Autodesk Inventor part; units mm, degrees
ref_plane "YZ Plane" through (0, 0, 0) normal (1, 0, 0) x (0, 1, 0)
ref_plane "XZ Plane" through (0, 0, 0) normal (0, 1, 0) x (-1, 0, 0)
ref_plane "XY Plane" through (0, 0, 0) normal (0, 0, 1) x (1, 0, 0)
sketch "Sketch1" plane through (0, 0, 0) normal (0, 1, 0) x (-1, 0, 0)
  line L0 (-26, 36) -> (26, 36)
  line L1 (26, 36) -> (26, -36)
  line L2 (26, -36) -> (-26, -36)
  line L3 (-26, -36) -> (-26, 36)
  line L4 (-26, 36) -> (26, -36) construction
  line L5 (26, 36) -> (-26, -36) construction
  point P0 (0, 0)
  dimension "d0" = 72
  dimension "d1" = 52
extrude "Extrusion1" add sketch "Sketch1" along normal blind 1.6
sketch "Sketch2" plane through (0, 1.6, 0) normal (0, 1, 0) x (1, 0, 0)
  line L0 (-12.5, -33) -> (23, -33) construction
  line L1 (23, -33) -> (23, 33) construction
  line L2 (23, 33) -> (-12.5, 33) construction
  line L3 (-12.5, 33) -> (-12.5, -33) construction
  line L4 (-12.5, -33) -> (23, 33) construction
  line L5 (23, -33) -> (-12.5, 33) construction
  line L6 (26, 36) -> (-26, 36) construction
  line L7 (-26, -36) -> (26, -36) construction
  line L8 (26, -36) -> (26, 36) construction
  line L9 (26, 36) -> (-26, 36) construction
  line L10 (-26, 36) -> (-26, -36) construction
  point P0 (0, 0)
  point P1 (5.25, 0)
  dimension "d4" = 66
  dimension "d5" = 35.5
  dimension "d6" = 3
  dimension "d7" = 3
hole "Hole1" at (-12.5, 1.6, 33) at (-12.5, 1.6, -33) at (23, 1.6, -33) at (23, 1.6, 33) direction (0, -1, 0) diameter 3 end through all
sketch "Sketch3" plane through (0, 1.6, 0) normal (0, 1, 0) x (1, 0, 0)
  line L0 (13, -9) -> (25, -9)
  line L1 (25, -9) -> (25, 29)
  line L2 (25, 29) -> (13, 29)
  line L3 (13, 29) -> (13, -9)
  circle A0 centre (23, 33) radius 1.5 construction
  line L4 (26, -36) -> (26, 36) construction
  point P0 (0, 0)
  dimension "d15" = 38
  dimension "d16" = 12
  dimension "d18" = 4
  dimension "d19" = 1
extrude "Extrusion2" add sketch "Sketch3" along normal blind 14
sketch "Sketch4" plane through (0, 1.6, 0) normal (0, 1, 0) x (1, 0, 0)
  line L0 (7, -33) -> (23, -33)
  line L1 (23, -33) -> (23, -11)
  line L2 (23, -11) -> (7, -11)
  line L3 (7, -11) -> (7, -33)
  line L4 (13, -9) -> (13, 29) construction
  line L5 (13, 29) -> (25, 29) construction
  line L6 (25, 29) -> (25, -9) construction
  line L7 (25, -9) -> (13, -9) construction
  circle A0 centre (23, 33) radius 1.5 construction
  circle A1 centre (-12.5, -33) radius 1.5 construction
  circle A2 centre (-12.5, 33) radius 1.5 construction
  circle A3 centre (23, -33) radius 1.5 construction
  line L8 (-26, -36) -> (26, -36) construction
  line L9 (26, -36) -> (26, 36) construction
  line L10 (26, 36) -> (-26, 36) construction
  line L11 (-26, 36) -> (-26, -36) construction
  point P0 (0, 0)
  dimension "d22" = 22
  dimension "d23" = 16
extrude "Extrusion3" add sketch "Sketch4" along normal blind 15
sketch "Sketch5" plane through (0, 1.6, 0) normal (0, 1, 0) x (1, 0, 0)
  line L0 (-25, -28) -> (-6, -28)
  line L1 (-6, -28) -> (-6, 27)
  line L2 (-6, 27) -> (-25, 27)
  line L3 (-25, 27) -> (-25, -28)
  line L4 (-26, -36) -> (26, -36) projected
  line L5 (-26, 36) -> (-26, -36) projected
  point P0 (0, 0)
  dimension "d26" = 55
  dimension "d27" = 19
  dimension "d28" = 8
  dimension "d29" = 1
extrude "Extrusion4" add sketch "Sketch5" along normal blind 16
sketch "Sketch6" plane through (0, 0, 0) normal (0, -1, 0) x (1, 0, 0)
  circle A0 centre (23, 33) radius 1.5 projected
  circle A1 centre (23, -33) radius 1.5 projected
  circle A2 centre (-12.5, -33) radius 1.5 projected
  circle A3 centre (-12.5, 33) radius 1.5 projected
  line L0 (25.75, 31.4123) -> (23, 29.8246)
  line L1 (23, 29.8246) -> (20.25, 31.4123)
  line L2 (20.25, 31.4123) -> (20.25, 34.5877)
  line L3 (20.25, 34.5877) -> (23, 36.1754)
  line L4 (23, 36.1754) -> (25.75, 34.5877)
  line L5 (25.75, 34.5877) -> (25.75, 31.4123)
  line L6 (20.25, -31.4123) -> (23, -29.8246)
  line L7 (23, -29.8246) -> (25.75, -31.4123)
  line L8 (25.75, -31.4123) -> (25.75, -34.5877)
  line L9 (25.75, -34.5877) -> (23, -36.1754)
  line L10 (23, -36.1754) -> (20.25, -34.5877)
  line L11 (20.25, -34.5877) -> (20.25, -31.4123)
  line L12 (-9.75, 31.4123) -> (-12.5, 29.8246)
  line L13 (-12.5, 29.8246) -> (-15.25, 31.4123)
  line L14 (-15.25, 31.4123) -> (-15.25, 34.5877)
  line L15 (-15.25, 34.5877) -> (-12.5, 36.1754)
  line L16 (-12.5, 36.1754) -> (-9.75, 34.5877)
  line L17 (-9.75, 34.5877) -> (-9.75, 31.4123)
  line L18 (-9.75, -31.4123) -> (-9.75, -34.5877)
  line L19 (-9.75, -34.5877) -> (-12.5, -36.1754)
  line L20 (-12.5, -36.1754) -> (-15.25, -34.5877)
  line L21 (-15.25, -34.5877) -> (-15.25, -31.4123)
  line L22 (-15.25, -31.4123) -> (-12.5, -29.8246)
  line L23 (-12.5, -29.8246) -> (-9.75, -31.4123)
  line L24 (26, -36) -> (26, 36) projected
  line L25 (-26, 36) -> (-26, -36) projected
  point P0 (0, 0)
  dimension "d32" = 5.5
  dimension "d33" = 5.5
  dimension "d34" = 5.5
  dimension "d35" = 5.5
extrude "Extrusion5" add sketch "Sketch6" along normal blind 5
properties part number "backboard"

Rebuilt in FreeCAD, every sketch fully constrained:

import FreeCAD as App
import Part
import Sketcher

V = App.Vector
Q = App.Units.Quantity

doc = App.newDocument("Part")
params = doc.addObject("Spreadsheet::Sheet", "Params")
for row, (alias, value) in enumerate([
    ("sketch1_width", "52 mm"),
    ("sketch1_height", "72 mm"),
    ("pad1_length", "1.6 mm"),
    ("sketch2_diameter", "3 mm"),
    ("hole_diameter", "3 mm"),
    ("sketch3_width", "12 mm"),
    ("sketch3_height", "38 mm"),
    ("pad2_length", "14 mm"),
    ("sketch4_width", "16 mm"),
    ("sketch4_height", "22 mm"),
    ("pad3_length", "15 mm"),
    ("sketch5_width", "19 mm"),
    ("sketch5_height", "55 mm"),
    ("pad4_length", "16 mm"),
    ("sketch6_diameter", "3 mm"),
    ("pad5_length", "5 mm"),
], start=1):
    params.set(f"A{row}", alias)
    params.set(f"B{row}", "=" + value)
    params.setAlias(f"B{row}", alias)

body = doc.addObject("PartDesign::Body", "Body")

sketch1 = doc.addObject("Sketcher::SketchObject", "Sketch")
body.addObject(sketch1)
sketch1.AttachmentSupport = (doc.XZ_Plane, [""])
sketch1.MapMode = "FlatFace"
sketch1.addGeometry(Part.LineSegment(V(-26, 36, 0), V(26, 36, 0)), False)
sketch1.addGeometry(Part.LineSegment(V(26, 36, 0), V(26, -36, 0)), False)
sketch1.addGeometry(Part.LineSegment(V(26, -36, 0), V(-26, -36, 0)), False)
sketch1.addGeometry(Part.LineSegment(V(-26, -36, 0), V(-26, 36, 0)), False)
sketch1.addConstraint(Sketcher.Constraint("Coincident", 0, 2, 1, 1))
sketch1.addConstraint(Sketcher.Constraint("Coincident", 1, 2, 2, 1))
sketch1.addConstraint(Sketcher.Constraint("Coincident", 2, 2, 3, 1))
sketch1.addConstraint(Sketcher.Constraint("Coincident", 3, 2, 0, 1))
sketch1.addConstraint(Sketcher.Constraint("Horizontal", 0))
sketch1.addConstraint(Sketcher.Constraint("Vertical", 1))
sketch1.addConstraint(Sketcher.Constraint("Horizontal", 2))
sketch1.addConstraint(Sketcher.Constraint("Vertical", 3))
sketch1.addConstraint(Sketcher.Constraint("Symmetric", 0, 2, 2, 2, -1, 1))
sketch1.addConstraint(Sketcher.Constraint("DistanceX", 0, 1, 0, 2, Q("52 mm")))
sketch1.addConstraint(Sketcher.Constraint("DistanceY", 1, 2, 1, 1, Q("72 mm")))
sketch1.setExpression("Constraints[9]", "Params.sketch1_width")
sketch1.setExpression("Constraints[10]", "Params.sketch1_height")
pad1 = doc.addObject("PartDesign::Pad", "Pad")
body.addObject(pad1)
pad1.Profile = sketch1
pad1.setExpression("Length", "Params.pad1_length")
pad1.Reversed = True

sketch2 = doc.addObject("Sketcher::SketchObject", "Sketch001")
body.addObject(sketch2)
sketch2.AttachmentSupport = (doc.XZ_Plane, [""])
sketch2.MapMode = "FlatFace"
sketch2.AttachmentOffset = App.Placement(V(0, 0, -1.6), App.Rotation())
sketch2.addGeometry(Part.Circle(V(-12.5, 33, 0), V(0, 0, 1), 1.5), False)
sketch2.addGeometry(Part.Circle(V(-12.5, -33, 0), V(0, 0, 1), 1.5), False)
sketch2.addGeometry(Part.Circle(V(23, -33, 0), V(0, 0, 1), 1.5), False)
sketch2.addGeometry(Part.Circle(V(23, 33, 0), V(0, 0, 1), 1.5), False)
sketch2.addConstraint(Sketcher.Constraint("Equal", 0, 1))
sketch2.addConstraint(Sketcher.Constraint("Equal", 1, 2))
sketch2.addConstraint(Sketcher.Constraint("Equal", 2, 3))
sketch2.addConstraint(Sketcher.Constraint("Symmetric", 0, 3, 1, 3, -1))
sketch2.addConstraint(Sketcher.Constraint("Symmetric", 2, 3, 3, 3, -1))
sketch2.addConstraint(Sketcher.Constraint("Horizontal", 1, 3, 2, 3))
sketch2.addConstraint(Sketcher.Constraint("Diameter", 0, Q("3 mm")))
sketch2.addConstraint(Sketcher.Constraint("DistanceY", -1, 1, 0, 3, Q("33 mm")))
sketch2.addConstraint(Sketcher.Constraint("DistanceX", -1, 1, 2, 3, Q("23 mm")))
sketch2.addConstraint(Sketcher.Constraint("DistanceX", 0, 3, -1, 1, Q("12.5 mm")))
sketch2.setExpression("Constraints[6]", "Params.sketch2_diameter")
doc.recompute()
hole = doc.addObject("PartDesign::Hole", "Hole")
body.addObject(hole)
hole.Profile = sketch2
hole.ThreadType = "None"
hole.setExpression("Diameter", "Params.hole_diameter")
hole.DepthType = "ThroughAll"
hole.Reversed = True

sketch3 = doc.addObject("Sketcher::SketchObject", "Sketch002")
body.addObject(sketch3)
sketch3.AttachmentSupport = (doc.XZ_Plane, [""])
sketch3.MapMode = "FlatFace"
sketch3.AttachmentOffset = App.Placement(V(0, 0, -1.6), App.Rotation())
sketch3.addGeometry(Part.LineSegment(V(13, -29, 0), V(13, 9, 0)), False)
sketch3.addGeometry(Part.LineSegment(V(13, 9, 0), V(25, 9, 0)), False)
sketch3.addGeometry(Part.LineSegment(V(25, 9, 0), V(25, -29, 0)), False)
sketch3.addGeometry(Part.LineSegment(V(25, -29, 0), V(13, -29, 0)), False)
sketch3.addConstraint(Sketcher.Constraint("Coincident", 0, 2, 1, 1))
sketch3.addConstraint(Sketcher.Constraint("Coincident", 1, 2, 2, 1))
sketch3.addConstraint(Sketcher.Constraint("Coincident", 2, 2, 3, 1))
sketch3.addConstraint(Sketcher.Constraint("Coincident", 3, 2, 0, 1))
sketch3.addConstraint(Sketcher.Constraint("Vertical", 0))
sketch3.addConstraint(Sketcher.Constraint("Horizontal", 1))
sketch3.addConstraint(Sketcher.Constraint("Vertical", 2))
sketch3.addConstraint(Sketcher.Constraint("Horizontal", 3))
sketch3.addConstraint(Sketcher.Constraint("DistanceX", 1, 1, 1, 2, Q("12 mm")))
sketch3.addConstraint(Sketcher.Constraint("DistanceY", 0, 1, 0, 2, Q("38 mm")))
sketch3.addConstraint(Sketcher.Constraint("DistanceX", -1, 1, 0, 2, Q("13 mm")))
sketch3.addConstraint(Sketcher.Constraint("DistanceY", -1, 1, 0, 2, Q("9 mm")))
sketch3.setExpression("Constraints[8]", "Params.sketch3_width")
sketch3.setExpression("Constraints[9]", "Params.sketch3_height")
pad2 = doc.addObject("PartDesign::Pad", "Pad001")
body.addObject(pad2)
pad2.Profile = sketch3
pad2.setExpression("Length", "Params.pad2_length")
pad2.Reversed = True

sketch4 = doc.addObject("Sketcher::SketchObject", "Sketch003")
body.addObject(sketch4)
sketch4.AttachmentSupport = (doc.XZ_Plane, [""])
sketch4.MapMode = "FlatFace"
sketch4.AttachmentOffset = App.Placement(V(0, 0, -1.6), App.Rotation())
sketch4.addGeometry(Part.LineSegment(V(7, 11, 0), V(7, 33, 0)), False)
sketch4.addGeometry(Part.LineSegment(V(7, 33, 0), V(23, 33, 0)), False)
sketch4.addGeometry(Part.LineSegment(V(23, 33, 0), V(23, 11, 0)), False)
sketch4.addGeometry(Part.LineSegment(V(23, 11, 0), V(7, 11, 0)), False)
sketch4.addConstraint(Sketcher.Constraint("Coincident", 0, 2, 1, 1))
sketch4.addConstraint(Sketcher.Constraint("Coincident", 1, 2, 2, 1))
sketch4.addConstraint(Sketcher.Constraint("Coincident", 2, 2, 3, 1))
sketch4.addConstraint(Sketcher.Constraint("Coincident", 3, 2, 0, 1))
sketch4.addConstraint(Sketcher.Constraint("Vertical", 0))
sketch4.addConstraint(Sketcher.Constraint("Horizontal", 1))
sketch4.addConstraint(Sketcher.Constraint("Vertical", 2))
sketch4.addConstraint(Sketcher.Constraint("Horizontal", 3))
sketch4.addConstraint(Sketcher.Constraint("DistanceX", 1, 1, 1, 2, Q("16 mm")))
sketch4.addConstraint(Sketcher.Constraint("DistanceY", 0, 1, 0, 2, Q("22 mm")))
sketch4.addConstraint(Sketcher.Constraint("DistanceX", -1, 1, 0, 2, Q("7 mm")))
sketch4.addConstraint(Sketcher.Constraint("DistanceY", -1, 1, 0, 2, Q("33 mm")))
sketch4.setExpression("Constraints[8]", "Params.sketch4_width")
sketch4.setExpression("Constraints[9]", "Params.sketch4_height")
pad3 = doc.addObject("PartDesign::Pad", "Pad002")
body.addObject(pad3)
pad3.Profile = sketch4
pad3.setExpression("Length", "Params.pad3_length")
pad3.Reversed = True

sketch5 = doc.addObject("Sketcher::SketchObject", "Sketch004")
body.addObject(sketch5)
sketch5.AttachmentSupport = (doc.XZ_Plane, [""])
sketch5.MapMode = "FlatFace"
sketch5.AttachmentOffset = App.Placement(V(0, 0, -1.6), App.Rotation())
sketch5.addGeometry(Part.LineSegment(V(-25, -27, 0), V(-25, 28, 0)), False)
sketch5.addGeometry(Part.LineSegment(V(-25, 28, 0), V(-6, 28, 0)), False)
sketch5.addGeometry(Part.LineSegment(V(-6, 28, 0), V(-6, -27, 0)), False)
sketch5.addGeometry(Part.LineSegment(V(-6, -27, 0), V(-25, -27, 0)), False)
sketch5.addConstraint(Sketcher.Constraint("Coincident", 0, 2, 1, 1))
sketch5.addConstraint(Sketcher.Constraint("Coincident", 1, 2, 2, 1))
sketch5.addConstraint(Sketcher.Constraint("Coincident", 2, 2, 3, 1))
sketch5.addConstraint(Sketcher.Constraint("Coincident", 3, 2, 0, 1))
sketch5.addConstraint(Sketcher.Constraint("Vertical", 0))
sketch5.addConstraint(Sketcher.Constraint("Horizontal", 1))
sketch5.addConstraint(Sketcher.Constraint("Vertical", 2))
sketch5.addConstraint(Sketcher.Constraint("Horizontal", 3))
sketch5.addConstraint(Sketcher.Constraint("DistanceX", 1, 1, 1, 2, Q("19 mm")))
sketch5.addConstraint(Sketcher.Constraint("DistanceY", 0, 1, 0, 2, Q("55 mm")))
sketch5.addConstraint(Sketcher.Constraint("DistanceX", 0, 2, -1, 1, Q("25 mm")))
sketch5.addConstraint(Sketcher.Constraint("DistanceY", -1, 1, 0, 2, Q("28 mm")))
sketch5.setExpression("Constraints[8]", "Params.sketch5_width")
sketch5.setExpression("Constraints[9]", "Params.sketch5_height")
pad4 = doc.addObject("PartDesign::Pad", "Pad003")
body.addObject(pad4)
pad4.Profile = sketch5
pad4.setExpression("Length", "Params.pad4_length")
pad4.Reversed = True

sketch6 = doc.addObject("Sketcher::SketchObject", "Sketch005")
body.addObject(sketch6)
sketch6.AttachmentSupport = (doc.XZ_Plane, [""])
sketch6.MapMode = "FlatFace"
sketch6.addGeometry(Part.LineSegment(V(23, 29.8, 0), V(25.8, 31.4, 0)), False)
sketch6.addGeometry(Part.LineSegment(V(25.8, 31.4, 0), V(25.8, 34.6, 0)), False)
sketch6.addGeometry(Part.LineSegment(V(25.8, 34.6, 0), V(23, 36.2, 0)), False)
sketch6.addGeometry(Part.LineSegment(V(23, 36.2, 0), V(20.2, 34.6, 0)), False)
sketch6.addGeometry(Part.LineSegment(V(20.2, 34.6, 0), V(20.2, 31.4, 0)), False)
sketch6.addGeometry(Part.LineSegment(V(20.2, 31.4, 0), V(23, 29.8, 0)), False)
sketch6.addGeometry(Part.Circle(V(23, 33, 0), V(0, 0, 1), 1.5), False)
sketch6.addGeometry(Part.LineSegment(V(23, -29.8, 0), V(20.2, -31.4, 0)), False)
sketch6.addGeometry(Part.LineSegment(V(20.2, -31.4, 0), V(20.2, -34.6, 0)), False)
sketch6.addGeometry(Part.LineSegment(V(20.2, -34.6, 0), V(23, -36.2, 0)), False)
sketch6.addGeometry(Part.LineSegment(V(23, -36.2, 0), V(25.8, -34.6, 0)), False)
sketch6.addGeometry(Part.LineSegment(V(25.8, -34.6, 0), V(25.8, -31.4, 0)), False)
sketch6.addGeometry(Part.LineSegment(V(25.8, -31.4, 0), V(23, -29.8, 0)), False)
sketch6.addGeometry(Part.Circle(V(23, -33, 0), V(0, 0, 1), 1.5), False)
sketch6.addGeometry(Part.LineSegment(V(-12.5, 29.8, 0), V(-9.8, 31.4, 0)), False)
sketch6.addGeometry(Part.LineSegment(V(-9.8, 31.4, 0), V(-9.8, 34.6, 0)), False)
sketch6.addGeometry(Part.LineSegment(V(-9.8, 34.6, 0), V(-12.5, 36.2, 0)), False)
sketch6.addGeometry(Part.LineSegment(V(-12.5, 36.2, 0), V(-15.2, 34.6, 0)), False)
sketch6.addGeometry(Part.LineSegment(V(-15.2, 34.6, 0), V(-15.2, 31.4, 0)), False)
sketch6.addGeometry(Part.LineSegment(V(-15.2, 31.4, 0), V(-12.5, 29.8, 0)), False)
sketch6.addGeometry(Part.Circle(V(-12.5, 33, 0), V(0, 0, 1), 1.5), False)
sketch6.addGeometry(Part.LineSegment(V(-9.8, -34.6, 0), V(-9.8, -31.4, 0)), False)
sketch6.addGeometry(Part.LineSegment(V(-9.8, -31.4, 0), V(-12.5, -29.8, 0)), False)
sketch6.addGeometry(Part.LineSegment(V(-12.5, -29.8, 0), V(-15.2, -31.4, 0)), False)
sketch6.addGeometry(Part.LineSegment(V(-15.2, -31.4, 0), V(-15.2, -34.6, 0)), False)
sketch6.addGeometry(Part.LineSegment(V(-15.2, -34.6, 0), V(-12.5, -36.2, 0)), False)
sketch6.addGeometry(Part.LineSegment(V(-12.5, -36.2, 0), V(-9.8, -34.6, 0)), False)
sketch6.addGeometry(Part.Circle(V(-12.5, -33, 0), V(0, 0, 1), 1.5), False)
sketch6.addConstraint(Sketcher.Constraint("Coincident", 0, 2, 1, 1))
sketch6.addConstraint(Sketcher.Constraint("Coincident", 1, 2, 2, 1))
sketch6.addConstraint(Sketcher.Constraint("Coincident", 2, 2, 3, 1))
sketch6.addConstraint(Sketcher.Constraint("Coincident", 3, 2, 4, 1))
sketch6.addConstraint(Sketcher.Constraint("Coincident", 4, 2, 5, 1))
sketch6.addConstraint(Sketcher.Constraint("Coincident", 5, 2, 0, 1))
sketch6.addConstraint(Sketcher.Constraint("Coincident", 7, 2, 8, 1))
sketch6.addConstraint(Sketcher.Constraint("Coincident", 8, 2, 9, 1))
sketch6.addConstraint(Sketcher.Constraint("Coincident", 9, 2, 10, 1))
sketch6.addConstraint(Sketcher.Constraint("Coincident", 10, 2, 11, 1))
sketch6.addConstraint(Sketcher.Constraint("Coincident", 11, 2, 12, 1))
sketch6.addConstraint(Sketcher.Constraint("Coincident", 12, 2, 7, 1))
sketch6.addConstraint(Sketcher.Constraint("Coincident", 14, 2, 15, 1))
sketch6.addConstraint(Sketcher.Constraint("Coincident", 15, 2, 16, 1))
sketch6.addConstraint(Sketcher.Constraint("Coincident", 16, 2, 17, 1))
sketch6.addConstraint(Sketcher.Constraint("Coincident", 17, 2, 18, 1))
sketch6.addConstraint(Sketcher.Constraint("Coincident", 18, 2, 19, 1))
sketch6.addConstraint(Sketcher.Constraint("Coincident", 19, 2, 14, 1))
sketch6.addConstraint(Sketcher.Constraint("Coincident", 21, 2, 22, 1))
sketch6.addConstraint(Sketcher.Constraint("Coincident", 22, 2, 23, 1))
sketch6.addConstraint(Sketcher.Constraint("Coincident", 23, 2, 24, 1))
sketch6.addConstraint(Sketcher.Constraint("Coincident", 24, 2, 25, 1))
sketch6.addConstraint(Sketcher.Constraint("Coincident", 25, 2, 26, 1))
sketch6.addConstraint(Sketcher.Constraint("Coincident", 26, 2, 21, 1))
sketch6.addConstraint(Sketcher.Constraint("Vertical", 1))
sketch6.addConstraint(Sketcher.Constraint("Vertical", 4))
sketch6.addConstraint(Sketcher.Constraint("Vertical", 8))
sketch6.addConstraint(Sketcher.Constraint("Vertical", 11))
sketch6.addConstraint(Sketcher.Constraint("Vertical", 15))
sketch6.addConstraint(Sketcher.Constraint("Vertical", 18))
sketch6.addConstraint(Sketcher.Constraint("Vertical", 21))
sketch6.addConstraint(Sketcher.Constraint("Vertical", 24))
sketch6.addConstraint(Sketcher.Constraint("Equal", 6, 13))
sketch6.addConstraint(Sketcher.Constraint("Equal", 13, 20))
sketch6.addConstraint(Sketcher.Constraint("Equal", 20, 27))
sketch6.addConstraint(Sketcher.Constraint("Symmetric", 6, 3, 13, 3, -1))
sketch6.addConstraint(Sketcher.Constraint("Symmetric", 20, 3, 27, 3, -1))
sketch6.addConstraint(Sketcher.Constraint("Symmetric", 4, 2, 7, 2, -1))
sketch6.addConstraint(Sketcher.Constraint("Symmetric", 2, 2, 9, 2, -1))
sketch6.addConstraint(Sketcher.Constraint("Symmetric", 1, 2, 10, 2, -1))
sketch6.addConstraint(Sketcher.Constraint("Symmetric", 5, 2, 12, 2, -1))
sketch6.addConstraint(Sketcher.Constraint("Symmetric", 14, 2, 21, 2, -1))
sketch6.addConstraint(Sketcher.Constraint("Symmetric", 19, 2, 22, 2, -1))
sketch6.addConstraint(Sketcher.Constraint("Symmetric", 18, 2, 23, 2, -1))
sketch6.addConstraint(Sketcher.Constraint("Symmetric", 16, 2, 25, 2, -1))
sketch6.addConstraint(Sketcher.Constraint("Parallel", 0, 3))
sketch6.addConstraint(Sketcher.Constraint("Parallel", 2, 5))
sketch6.addConstraint(Sketcher.Constraint("Parallel", 3, 7))
sketch6.addConstraint(Sketcher.Constraint("Parallel", 5, 9))
sketch6.addConstraint(Sketcher.Constraint("Parallel", 9, 12))
sketch6.addConstraint(Sketcher.Constraint("Parallel", 10, 14))
sketch6.addConstraint(Sketcher.Constraint("Parallel", 12, 16))
sketch6.addConstraint(Sketcher.Constraint("Parallel", 14, 17))
sketch6.addConstraint(Sketcher.Constraint("Parallel", 16, 19))
sketch6.addConstraint(Sketcher.Constraint("Parallel", 22, 25))
sketch6.addConstraint(Sketcher.Constraint("Parallel", 23, 26))
sketch6.addConstraint(Sketcher.Constraint("Horizontal", 6, 3, 20, 3))
sketch6.addConstraint(Sketcher.Constraint("Horizontal", 1, 2, 3, 2))
sketch6.addConstraint(Sketcher.Constraint("Horizontal", 0, 2, 4, 2))
sketch6.addConstraint(Sketcher.Constraint("Horizontal", 4, 2, 14, 2))
sketch6.addConstraint(Sketcher.Constraint("Horizontal", 3, 2, 15, 2))
sketch6.addConstraint(Sketcher.Constraint("Horizontal", 2, 2, 16, 2))
sketch6.addConstraint(Sketcher.Constraint("Horizontal", 15, 2, 17, 2))
sketch6.addConstraint(Sketcher.Constraint("Horizontal", 14, 2, 18, 2))
sketch6.addConstraint(Sketcher.Constraint("Vertical", 13, 3, 2, 2))
sketch6.addConstraint(Sketcher.Constraint("Vertical", 27, 3, 16, 2))
sketch6.addConstraint(Sketcher.Constraint("Diameter", 6, Q("3 mm")))
sketch6.addConstraint(Sketcher.Constraint("DistanceX", 3, 2, 1, 2, Q("5.5 mm")))
sketch6.addConstraint(Sketcher.Constraint("Angle", 0, Q("29.9998 deg")))
sketch6.addConstraint(Sketcher.Constraint("DistanceX", -1, 1, 6, 3, Q("23 mm")))
sketch6.addConstraint(Sketcher.Constraint("DistanceY", -1, 1, 6, 3, Q("33 mm")))
sketch6.addConstraint(Sketcher.Constraint("DistanceY", 8, 2, 4, 2, Q("66 mm")))
sketch6.addConstraint(Sketcher.Constraint("DistanceX", 14, 2, 4, 2, Q("30 mm")))
sketch6.addConstraint(Sketcher.Constraint("DistanceY", 1, 1, 1, 2, Q("3.1754 mm")))
sketch6.setExpression("Constraints[66]", "Params.sketch6_diameter")
pad5 = doc.addObject("PartDesign::Pad", "Pad004")
body.addObject(pad5)
pad5.Profile = sketch6
pad5.setExpression("Length", "Params.pad5_length")

doc.recompute()
